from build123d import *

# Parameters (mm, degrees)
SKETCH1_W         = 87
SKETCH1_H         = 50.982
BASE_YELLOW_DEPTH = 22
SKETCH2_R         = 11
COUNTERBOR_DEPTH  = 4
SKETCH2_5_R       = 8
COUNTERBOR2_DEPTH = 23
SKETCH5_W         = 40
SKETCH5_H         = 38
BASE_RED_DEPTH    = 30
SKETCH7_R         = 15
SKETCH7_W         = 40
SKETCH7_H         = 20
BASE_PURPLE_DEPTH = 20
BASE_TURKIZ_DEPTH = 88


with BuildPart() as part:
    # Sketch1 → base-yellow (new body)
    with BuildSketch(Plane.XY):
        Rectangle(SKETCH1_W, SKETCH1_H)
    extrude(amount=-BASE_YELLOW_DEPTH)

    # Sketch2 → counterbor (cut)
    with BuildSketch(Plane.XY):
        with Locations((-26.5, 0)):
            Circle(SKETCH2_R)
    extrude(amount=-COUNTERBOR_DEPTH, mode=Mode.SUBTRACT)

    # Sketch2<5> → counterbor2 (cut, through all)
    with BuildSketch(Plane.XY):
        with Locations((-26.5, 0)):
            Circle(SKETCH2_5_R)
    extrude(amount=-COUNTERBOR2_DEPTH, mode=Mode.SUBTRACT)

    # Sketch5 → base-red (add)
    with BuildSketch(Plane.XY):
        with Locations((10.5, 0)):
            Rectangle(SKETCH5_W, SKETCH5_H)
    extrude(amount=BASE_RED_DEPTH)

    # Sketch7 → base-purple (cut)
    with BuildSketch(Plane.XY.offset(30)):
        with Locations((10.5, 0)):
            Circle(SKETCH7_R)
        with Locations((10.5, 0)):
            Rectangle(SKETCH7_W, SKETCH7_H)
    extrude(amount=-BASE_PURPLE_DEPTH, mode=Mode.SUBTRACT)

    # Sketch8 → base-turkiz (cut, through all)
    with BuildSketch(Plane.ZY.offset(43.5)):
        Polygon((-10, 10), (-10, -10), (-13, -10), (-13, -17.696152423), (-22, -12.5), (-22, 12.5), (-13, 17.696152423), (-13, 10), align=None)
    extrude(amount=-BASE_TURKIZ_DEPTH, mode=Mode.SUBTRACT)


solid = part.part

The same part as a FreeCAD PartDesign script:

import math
import FreeCAD as App
import Part
import Sketcher

V = App.Vector
Q = App.Units.Quantity

doc = App.newDocument("Part")
body = doc.addObject("PartDesign::Body", "Body")

# Sketch on XY plane
sketch1 = doc.addObject("Sketcher::SketchObject", "Sketch")
body.addObject(sketch1)
sketch1.AttachmentSupport = (doc.XY_Plane, [""])
sketch1.MapMode = "FlatFace"
sketch1.addGeometry(Part.LineSegment(V(-43.5, 25.491, 0), V(-43.5, -25.491, 0)), False)
sketch1.addGeometry(Part.LineSegment(V(-43.5, -25.491, 0), V(43.5, -25.491, 0)), False)
sketch1.addGeometry(Part.LineSegment(V(43.5, -25.491, 0), V(43.5, 25.491, 0)), False)
sketch1.addGeometry(Part.LineSegment(V(43.5, 25.491, 0), V(-43.5, 25.491, 0)), False)
sketch1.addConstraint(Sketcher.Constraint("Coincident", 0, 2, 1, 1))
sketch1.addConstraint(Sketcher.Constraint("Coincident", 1, 2, 2, 1))
sketch1.addConstraint(Sketcher.Constraint("Coincident", 2, 2, 3, 1))
sketch1.addConstraint(Sketcher.Constraint("Coincident", 3, 2, 0, 1))
sketch1.addConstraint(Sketcher.Constraint("Vertical", 0))
sketch1.addConstraint(Sketcher.Constraint("Horizontal", 1))
sketch1.addConstraint(Sketcher.Constraint("Vertical", 2))
sketch1.addConstraint(Sketcher.Constraint("Horizontal", 3))
sketch1.addConstraint(Sketcher.Constraint("Symmetric", 0, 2, 2, 2, -1, 1))
sketch1.addConstraint(Sketcher.Constraint("DistanceX", 1, 1, 1, 2, 87.0))
sketch1.addConstraint(Sketcher.Constraint("DistanceY", 0, 2, 0, 1, 50.982))
pad1 = doc.addObject("PartDesign::Pad", "Pad")
body.addObject(pad1)
pad1.Profile = sketch1
pad1.Length = 22
pad1.Reversed = True

# Sketch on XY plane
sketch2 = doc.addObject("Sketcher::SketchObject", "Sketch001")
body.addObject(sketch2)
sketch2.AttachmentSupport = (doc.XY_Plane, [""])
sketch2.MapMode = "FlatFace"
sketch2.addGeometry(Part.Circle(V(-26.5, 0, 0), V(0, 0, 1), 11), False)
sketch2.addConstraint(Sketcher.Constraint("PointOnObject", 0, 3, -1))
sketch2.addConstraint(Sketcher.Constraint("Diameter", 0, 22.0))
sketch2.addConstraint(Sketcher.Constraint("DistanceX", 0, 3, -1, 1, 26.5))
pocket1 = doc.addObject("PartDesign::Pocket", "Pocket")
body.addObject(pocket1)
pocket1.Profile = sketch2
pocket1.Length = 4

# Sketch on XY plane
sketch3 = doc.addObject("Sketcher::SketchObject", "Sketch002")
body.addObject(sketch3)
sketch3.AttachmentSupport = (doc.XY_Plane, [""])
sketch3.MapMode = "FlatFace"
sketch3.addGeometry(Part.Circle(V(-26.5, 0, 0), V(0, 0, 1), 8), False)
sketch3.addConstraint(Sketcher.Constraint("PointOnObject", 0, 3, -1))
sketch3.addConstraint(Sketcher.Constraint("Diameter", 0, 16.0))
sketch3.addConstraint(Sketcher.Constraint("DistanceX", 0, 3, -1, 1, 26.5))
pocket2 = doc.addObject("PartDesign::Pocket", "Pocket001")
body.addObject(pocket2)
pocket2.Profile = sketch3
pocket2.Type = "ThroughAll"

# Sketch on XY plane
sketch4 = doc.addObject("Sketcher::SketchObject", "Sketch003")
body.addObject(sketch4)
sketch4.AttachmentSupport = (doc.XY_Plane, [""])
sketch4.MapMode = "FlatFace"
sketch4.addGeometry(Part.LineSegment(V(-9.5, 19, 0), V(-9.5, -19, 0)), False)
sketch4.addGeometry(Part.LineSegment(V(-9.5, -19, 0), V(30.5, -19, 0)), False)
sketch4.addGeometry(Part.LineSegment(V(30.5, -19, 0), V(30.5, 19, 0)), False)
sketch4.addGeometry(Part.LineSegment(V(30.5, 19, 0), V(-9.5, 19, 0)), False)
sketch4.addConstraint(Sketcher.Constraint("Coincident", 0, 2, 1, 1))
sketch4.addConstraint(Sketcher.Constraint("Coincident", 1, 2, 2, 1))
sketch4.addConstraint(Sketcher.Constraint("Coincident", 2, 2, 3, 1))
sketch4.addConstraint(Sketcher.Constraint("Coincident", 3, 2, 0, 1))
sketch4.addConstraint(Sketcher.Constraint("Vertical", 0))
sketch4.addConstraint(Sketcher.Constraint("Horizontal", 1))
sketch4.addConstraint(Sketcher.Constraint("Vertical", 2))
sketch4.addConstraint(Sketcher.Constraint("Horizontal", 3))
sketch4.addConstraint(Sketcher.Constraint("DistanceX", 1, 1, 1, 2, 40.0))
sketch4.addConstraint(Sketcher.Constraint("DistanceY", 0, 2, 0, 1, 38.0))
sketch4.addConstraint(Sketcher.Constraint("DistanceY", 0, 2, -1, 1, 19.0))
sketch4.addConstraint(Sketcher.Constraint("DistanceX", 0, 2, -1, 1, 9.5))
pad2 = doc.addObject("PartDesign::Pad", "Pad001")
body.addObject(pad2)
pad2.Profile = sketch4
pad2.Length = 30

# Sketch on XY plane
sketch5 = doc.addObject("Sketcher::SketchObject", "Sketch004")
body.addObject(sketch5)
sketch5.AttachmentSupport = (doc.XY_Plane, [""])
sketch5.MapMode = "FlatFace"
sketch5.AttachmentOffset = App.Placement(V(0, 0, 30), App.Rotation())
sketch5.addGeometry(Part.LineSegment(V(21.68034, -10, 0), V(30.5, -10, 0)), False)
sketch5.addGeometry(Part.LineSegment(V(30.5, -10, 0), V(30.5, 10, 0)), False)
sketch5.addGeometry(Part.LineSegment(V(30.5, 10, 0), V(21.68034, 10, 0)), False)
sketch5.addGeometry(Part.ArcOfCircle(Part.Circle(V(10.5, 0, 0), V(0, 0, 1), 15), math.radians(41.810315), math.radians(138.189685)), False)
sketch5.addGeometry(Part.LineSegment(V(-0.68034, 10, 0), V(-9.5, 10, 0)), False)
sketch5.addGeometry(Part.LineSegment(V(-9.5, 10, 0), V(-9.5, -10, 0)), False)
sketch5.addGeometry(Part.LineSegment(V(-9.5, -10, 0), V(-0.68034, -10, 0)), False)
sketch5.addGeometry(Part.ArcOfCircle(Part.Circle(V(10.5, 0, 0), V(0, 0, 1), 15), math.radians(-138.189685), math.radians(-41.810315)), False)
sketch5.addConstraint(Sketcher.Constraint("Coincident", 0, 2, 1, 1))
sketch5.addConstraint(Sketcher.Constraint("Coincident", 1, 2, 2, 1))
sketch5.addConstraint(Sketcher.Constraint("Coincident", 2, 2, 3, 1))
sketch5.addConstraint(Sketcher.Constraint("Coincident", 3, 2, 4, 1))
sketch5.addConstraint(Sketcher.Constraint("Coincident", 4, 2, 5, 1))
sketch5.addConstraint(Sketcher.Constraint("Coincident", 5, 2, 6, 1))
sketch5.addConstraint(Sketcher.Constraint("Coincident", 6, 2, 7, 1))
sketch5.addConstraint(Sketcher.Constraint("Coincident", 7, 2, 0, 1))
sketch5.addConstraint(Sketcher.Constraint("Horizontal", 0))
sketch5.addConstraint(Sketcher.Constraint("Vertical", 1))
sketch5.addConstraint(Sketcher.Constraint("Horizontal", 2))
sketch5.addConstraint(Sketcher.Constraint("Horizontal", 4))
sketch5.addConstraint(Sketcher.Constraint("Vertical", 5))
sketch5.addConstraint(Sketcher.Constraint("Horizontal", 6))
sketch5.addConstraint(Sketcher.Constraint("Coincident", 7, 3, 3, 3))
sketch5.addConstraint(Sketcher.Constraint("Equal", 3, 7))
sketch5.addConstraint(Sketcher.Constraint("Symmetric", 3, 2, 6, 2, -1))
sketch5.addConstraint(Sketcher.Constraint("Horizontal", 2, 2, 3, 2))
sketch5.addConstraint(Sketcher.Constraint("Horizontal", 0, 2, 5, 2))
sketch5.addConstraint(Sketcher.Constraint("Equal", 2, 4))
sketch5.addConstraint(Sketcher.Constraint("Radius", 3, 15.0))
sketch5.addConstraint(Sketcher.Constraint("DistanceY", 1, 1, 1, 2, 20.0))
sketch5.addConstraint(Sketcher.Constraint("DistanceX", 3, 3, 0, 2, 20.0))
sketch5.addConstraint(Sketcher.Constraint("DistanceX", -1, 1, 3, 3, 10.5))
pocket3 = doc.addObject("PartDesign::Pocket", "Pocket002")
body.addObject(pocket3)
pocket3.Profile = sketch5
pocket3.Length = 20

# Sketch on YZ plane
sketch6 = doc.addObject("Sketcher::SketchObject", "Sketch005")
body.addObject(sketch6)
sketch6.AttachmentSupport = (doc.YZ_Plane, [""])
sketch6.MapMode = "FlatFace"
sketch6.AttachmentOffset = App.Placement(V(0, 0, -43.5), App.Rotation())
sketch6.addGeometry(Part.LineSegment(V(-10, -10, 0), V(10, -10, 0)), False)
sketch6.addGeometry(Part.LineSegment(V(10, -10, 0), V(10, -13, 0)), False)
sketch6.addGeometry(Part.LineSegment(V(10, -13, 0), V(17.696152, -13, 0)), False)
sketch6.addGeometry(Part.LineSegment(V(17.696152, -13, 0), V(12.5, -22, 0)), False)
sketch6.addGeometry(Part.LineSegment(V(12.5, -22, 0), V(-12.5, -22, 0)), False)
sketch6.addGeometry(Part.LineSegment(V(-12.5, -22, 0), V(-17.696152, -13, 0)), False)
sketch6.addGeometry(Part.LineSegment(V(-17.696152, -13, 0), V(-10, -13, 0)), False)
sketch6.addGeometry(Part.LineSegment(V(-10, -13, 0), V(-10, -10, 0)), False)
sketch6.addConstraint(Sketcher.Constraint("Coincident", 0, 2, 1, 1))
sketch6.addConstraint(Sketcher.Constraint("Coincident", 1, 2, 2, 1))
sketch6.addConstraint(Sketcher.Constraint("Coincident", 2, 2, 3, 1))
sketch6.addConstraint(Sketcher.Constraint("Coincident", 3, 2, 4, 1))
sketch6.addConstraint(Sketcher.Constraint("Coincident", 4, 2, 5, 1))
sketch6.addConstraint(Sketcher.Constraint("Coincident", 5, 2, 6, 1))
sketch6.addConstraint(Sketcher.Constraint("Coincident", 6, 2, 7, 1))
sketch6.addConstraint(Sketcher.Constraint("Coincident", 7, 2, 0, 1))
sketch6.addConstraint(Sketcher.Constraint("Horizontal", 0))
sketch6.addConstraint(Sketcher.Constraint("Vertical", 1))
sketch6.addConstraint(Sketcher.Constraint("Horizontal", 2))
sketch6.addConstraint(Sketcher.Constraint("Horizontal", 4))
sketch6.addConstraint(Sketcher.Constraint("Horizontal", 6))
sketch6.addConstraint(Sketcher.Constraint("Vertical", 7))
sketch6.addConstraint(Sketcher.Constraint("Symmetric", 2, 2, 5, 2, -2))
sketch6.addConstraint(Sketcher.Constraint("Equal", 2, 6))
sketch6.addConstraint(Sketcher.Constraint("Equal", 3, 5))
sketch6.addConstraint(Sketcher.Constraint("DistanceX", 0, 1, 0, 2, 20.0))
sketch6.addConstraint(Sketcher.Constraint("DistanceX", 4, 2, 4, 1, 25.0))
sketch6.addConstraint(Sketcher.Constraint("DistanceY", 1, 2, 1, 1, 3.0))
sketch6.addConstraint(Sketcher.Constraint("Angle", 3, Q("-120 deg")))
sketch6.addConstraint(Sketcher.Constraint("DistanceY", 0, 2, -1, 1, 10.0))
sketch6.addConstraint(Sketcher.Constraint("DistanceY", 3, 2, -1, 1, 22.0))
pocket4 = doc.addObject("PartDesign::Pocket", "Pocket003")
body.addObject(pocket4)
pocket4.Profile = sketch6
pocket4.Type = "ThroughAll"
pocket4.Reversed = True

doc.recompute()
